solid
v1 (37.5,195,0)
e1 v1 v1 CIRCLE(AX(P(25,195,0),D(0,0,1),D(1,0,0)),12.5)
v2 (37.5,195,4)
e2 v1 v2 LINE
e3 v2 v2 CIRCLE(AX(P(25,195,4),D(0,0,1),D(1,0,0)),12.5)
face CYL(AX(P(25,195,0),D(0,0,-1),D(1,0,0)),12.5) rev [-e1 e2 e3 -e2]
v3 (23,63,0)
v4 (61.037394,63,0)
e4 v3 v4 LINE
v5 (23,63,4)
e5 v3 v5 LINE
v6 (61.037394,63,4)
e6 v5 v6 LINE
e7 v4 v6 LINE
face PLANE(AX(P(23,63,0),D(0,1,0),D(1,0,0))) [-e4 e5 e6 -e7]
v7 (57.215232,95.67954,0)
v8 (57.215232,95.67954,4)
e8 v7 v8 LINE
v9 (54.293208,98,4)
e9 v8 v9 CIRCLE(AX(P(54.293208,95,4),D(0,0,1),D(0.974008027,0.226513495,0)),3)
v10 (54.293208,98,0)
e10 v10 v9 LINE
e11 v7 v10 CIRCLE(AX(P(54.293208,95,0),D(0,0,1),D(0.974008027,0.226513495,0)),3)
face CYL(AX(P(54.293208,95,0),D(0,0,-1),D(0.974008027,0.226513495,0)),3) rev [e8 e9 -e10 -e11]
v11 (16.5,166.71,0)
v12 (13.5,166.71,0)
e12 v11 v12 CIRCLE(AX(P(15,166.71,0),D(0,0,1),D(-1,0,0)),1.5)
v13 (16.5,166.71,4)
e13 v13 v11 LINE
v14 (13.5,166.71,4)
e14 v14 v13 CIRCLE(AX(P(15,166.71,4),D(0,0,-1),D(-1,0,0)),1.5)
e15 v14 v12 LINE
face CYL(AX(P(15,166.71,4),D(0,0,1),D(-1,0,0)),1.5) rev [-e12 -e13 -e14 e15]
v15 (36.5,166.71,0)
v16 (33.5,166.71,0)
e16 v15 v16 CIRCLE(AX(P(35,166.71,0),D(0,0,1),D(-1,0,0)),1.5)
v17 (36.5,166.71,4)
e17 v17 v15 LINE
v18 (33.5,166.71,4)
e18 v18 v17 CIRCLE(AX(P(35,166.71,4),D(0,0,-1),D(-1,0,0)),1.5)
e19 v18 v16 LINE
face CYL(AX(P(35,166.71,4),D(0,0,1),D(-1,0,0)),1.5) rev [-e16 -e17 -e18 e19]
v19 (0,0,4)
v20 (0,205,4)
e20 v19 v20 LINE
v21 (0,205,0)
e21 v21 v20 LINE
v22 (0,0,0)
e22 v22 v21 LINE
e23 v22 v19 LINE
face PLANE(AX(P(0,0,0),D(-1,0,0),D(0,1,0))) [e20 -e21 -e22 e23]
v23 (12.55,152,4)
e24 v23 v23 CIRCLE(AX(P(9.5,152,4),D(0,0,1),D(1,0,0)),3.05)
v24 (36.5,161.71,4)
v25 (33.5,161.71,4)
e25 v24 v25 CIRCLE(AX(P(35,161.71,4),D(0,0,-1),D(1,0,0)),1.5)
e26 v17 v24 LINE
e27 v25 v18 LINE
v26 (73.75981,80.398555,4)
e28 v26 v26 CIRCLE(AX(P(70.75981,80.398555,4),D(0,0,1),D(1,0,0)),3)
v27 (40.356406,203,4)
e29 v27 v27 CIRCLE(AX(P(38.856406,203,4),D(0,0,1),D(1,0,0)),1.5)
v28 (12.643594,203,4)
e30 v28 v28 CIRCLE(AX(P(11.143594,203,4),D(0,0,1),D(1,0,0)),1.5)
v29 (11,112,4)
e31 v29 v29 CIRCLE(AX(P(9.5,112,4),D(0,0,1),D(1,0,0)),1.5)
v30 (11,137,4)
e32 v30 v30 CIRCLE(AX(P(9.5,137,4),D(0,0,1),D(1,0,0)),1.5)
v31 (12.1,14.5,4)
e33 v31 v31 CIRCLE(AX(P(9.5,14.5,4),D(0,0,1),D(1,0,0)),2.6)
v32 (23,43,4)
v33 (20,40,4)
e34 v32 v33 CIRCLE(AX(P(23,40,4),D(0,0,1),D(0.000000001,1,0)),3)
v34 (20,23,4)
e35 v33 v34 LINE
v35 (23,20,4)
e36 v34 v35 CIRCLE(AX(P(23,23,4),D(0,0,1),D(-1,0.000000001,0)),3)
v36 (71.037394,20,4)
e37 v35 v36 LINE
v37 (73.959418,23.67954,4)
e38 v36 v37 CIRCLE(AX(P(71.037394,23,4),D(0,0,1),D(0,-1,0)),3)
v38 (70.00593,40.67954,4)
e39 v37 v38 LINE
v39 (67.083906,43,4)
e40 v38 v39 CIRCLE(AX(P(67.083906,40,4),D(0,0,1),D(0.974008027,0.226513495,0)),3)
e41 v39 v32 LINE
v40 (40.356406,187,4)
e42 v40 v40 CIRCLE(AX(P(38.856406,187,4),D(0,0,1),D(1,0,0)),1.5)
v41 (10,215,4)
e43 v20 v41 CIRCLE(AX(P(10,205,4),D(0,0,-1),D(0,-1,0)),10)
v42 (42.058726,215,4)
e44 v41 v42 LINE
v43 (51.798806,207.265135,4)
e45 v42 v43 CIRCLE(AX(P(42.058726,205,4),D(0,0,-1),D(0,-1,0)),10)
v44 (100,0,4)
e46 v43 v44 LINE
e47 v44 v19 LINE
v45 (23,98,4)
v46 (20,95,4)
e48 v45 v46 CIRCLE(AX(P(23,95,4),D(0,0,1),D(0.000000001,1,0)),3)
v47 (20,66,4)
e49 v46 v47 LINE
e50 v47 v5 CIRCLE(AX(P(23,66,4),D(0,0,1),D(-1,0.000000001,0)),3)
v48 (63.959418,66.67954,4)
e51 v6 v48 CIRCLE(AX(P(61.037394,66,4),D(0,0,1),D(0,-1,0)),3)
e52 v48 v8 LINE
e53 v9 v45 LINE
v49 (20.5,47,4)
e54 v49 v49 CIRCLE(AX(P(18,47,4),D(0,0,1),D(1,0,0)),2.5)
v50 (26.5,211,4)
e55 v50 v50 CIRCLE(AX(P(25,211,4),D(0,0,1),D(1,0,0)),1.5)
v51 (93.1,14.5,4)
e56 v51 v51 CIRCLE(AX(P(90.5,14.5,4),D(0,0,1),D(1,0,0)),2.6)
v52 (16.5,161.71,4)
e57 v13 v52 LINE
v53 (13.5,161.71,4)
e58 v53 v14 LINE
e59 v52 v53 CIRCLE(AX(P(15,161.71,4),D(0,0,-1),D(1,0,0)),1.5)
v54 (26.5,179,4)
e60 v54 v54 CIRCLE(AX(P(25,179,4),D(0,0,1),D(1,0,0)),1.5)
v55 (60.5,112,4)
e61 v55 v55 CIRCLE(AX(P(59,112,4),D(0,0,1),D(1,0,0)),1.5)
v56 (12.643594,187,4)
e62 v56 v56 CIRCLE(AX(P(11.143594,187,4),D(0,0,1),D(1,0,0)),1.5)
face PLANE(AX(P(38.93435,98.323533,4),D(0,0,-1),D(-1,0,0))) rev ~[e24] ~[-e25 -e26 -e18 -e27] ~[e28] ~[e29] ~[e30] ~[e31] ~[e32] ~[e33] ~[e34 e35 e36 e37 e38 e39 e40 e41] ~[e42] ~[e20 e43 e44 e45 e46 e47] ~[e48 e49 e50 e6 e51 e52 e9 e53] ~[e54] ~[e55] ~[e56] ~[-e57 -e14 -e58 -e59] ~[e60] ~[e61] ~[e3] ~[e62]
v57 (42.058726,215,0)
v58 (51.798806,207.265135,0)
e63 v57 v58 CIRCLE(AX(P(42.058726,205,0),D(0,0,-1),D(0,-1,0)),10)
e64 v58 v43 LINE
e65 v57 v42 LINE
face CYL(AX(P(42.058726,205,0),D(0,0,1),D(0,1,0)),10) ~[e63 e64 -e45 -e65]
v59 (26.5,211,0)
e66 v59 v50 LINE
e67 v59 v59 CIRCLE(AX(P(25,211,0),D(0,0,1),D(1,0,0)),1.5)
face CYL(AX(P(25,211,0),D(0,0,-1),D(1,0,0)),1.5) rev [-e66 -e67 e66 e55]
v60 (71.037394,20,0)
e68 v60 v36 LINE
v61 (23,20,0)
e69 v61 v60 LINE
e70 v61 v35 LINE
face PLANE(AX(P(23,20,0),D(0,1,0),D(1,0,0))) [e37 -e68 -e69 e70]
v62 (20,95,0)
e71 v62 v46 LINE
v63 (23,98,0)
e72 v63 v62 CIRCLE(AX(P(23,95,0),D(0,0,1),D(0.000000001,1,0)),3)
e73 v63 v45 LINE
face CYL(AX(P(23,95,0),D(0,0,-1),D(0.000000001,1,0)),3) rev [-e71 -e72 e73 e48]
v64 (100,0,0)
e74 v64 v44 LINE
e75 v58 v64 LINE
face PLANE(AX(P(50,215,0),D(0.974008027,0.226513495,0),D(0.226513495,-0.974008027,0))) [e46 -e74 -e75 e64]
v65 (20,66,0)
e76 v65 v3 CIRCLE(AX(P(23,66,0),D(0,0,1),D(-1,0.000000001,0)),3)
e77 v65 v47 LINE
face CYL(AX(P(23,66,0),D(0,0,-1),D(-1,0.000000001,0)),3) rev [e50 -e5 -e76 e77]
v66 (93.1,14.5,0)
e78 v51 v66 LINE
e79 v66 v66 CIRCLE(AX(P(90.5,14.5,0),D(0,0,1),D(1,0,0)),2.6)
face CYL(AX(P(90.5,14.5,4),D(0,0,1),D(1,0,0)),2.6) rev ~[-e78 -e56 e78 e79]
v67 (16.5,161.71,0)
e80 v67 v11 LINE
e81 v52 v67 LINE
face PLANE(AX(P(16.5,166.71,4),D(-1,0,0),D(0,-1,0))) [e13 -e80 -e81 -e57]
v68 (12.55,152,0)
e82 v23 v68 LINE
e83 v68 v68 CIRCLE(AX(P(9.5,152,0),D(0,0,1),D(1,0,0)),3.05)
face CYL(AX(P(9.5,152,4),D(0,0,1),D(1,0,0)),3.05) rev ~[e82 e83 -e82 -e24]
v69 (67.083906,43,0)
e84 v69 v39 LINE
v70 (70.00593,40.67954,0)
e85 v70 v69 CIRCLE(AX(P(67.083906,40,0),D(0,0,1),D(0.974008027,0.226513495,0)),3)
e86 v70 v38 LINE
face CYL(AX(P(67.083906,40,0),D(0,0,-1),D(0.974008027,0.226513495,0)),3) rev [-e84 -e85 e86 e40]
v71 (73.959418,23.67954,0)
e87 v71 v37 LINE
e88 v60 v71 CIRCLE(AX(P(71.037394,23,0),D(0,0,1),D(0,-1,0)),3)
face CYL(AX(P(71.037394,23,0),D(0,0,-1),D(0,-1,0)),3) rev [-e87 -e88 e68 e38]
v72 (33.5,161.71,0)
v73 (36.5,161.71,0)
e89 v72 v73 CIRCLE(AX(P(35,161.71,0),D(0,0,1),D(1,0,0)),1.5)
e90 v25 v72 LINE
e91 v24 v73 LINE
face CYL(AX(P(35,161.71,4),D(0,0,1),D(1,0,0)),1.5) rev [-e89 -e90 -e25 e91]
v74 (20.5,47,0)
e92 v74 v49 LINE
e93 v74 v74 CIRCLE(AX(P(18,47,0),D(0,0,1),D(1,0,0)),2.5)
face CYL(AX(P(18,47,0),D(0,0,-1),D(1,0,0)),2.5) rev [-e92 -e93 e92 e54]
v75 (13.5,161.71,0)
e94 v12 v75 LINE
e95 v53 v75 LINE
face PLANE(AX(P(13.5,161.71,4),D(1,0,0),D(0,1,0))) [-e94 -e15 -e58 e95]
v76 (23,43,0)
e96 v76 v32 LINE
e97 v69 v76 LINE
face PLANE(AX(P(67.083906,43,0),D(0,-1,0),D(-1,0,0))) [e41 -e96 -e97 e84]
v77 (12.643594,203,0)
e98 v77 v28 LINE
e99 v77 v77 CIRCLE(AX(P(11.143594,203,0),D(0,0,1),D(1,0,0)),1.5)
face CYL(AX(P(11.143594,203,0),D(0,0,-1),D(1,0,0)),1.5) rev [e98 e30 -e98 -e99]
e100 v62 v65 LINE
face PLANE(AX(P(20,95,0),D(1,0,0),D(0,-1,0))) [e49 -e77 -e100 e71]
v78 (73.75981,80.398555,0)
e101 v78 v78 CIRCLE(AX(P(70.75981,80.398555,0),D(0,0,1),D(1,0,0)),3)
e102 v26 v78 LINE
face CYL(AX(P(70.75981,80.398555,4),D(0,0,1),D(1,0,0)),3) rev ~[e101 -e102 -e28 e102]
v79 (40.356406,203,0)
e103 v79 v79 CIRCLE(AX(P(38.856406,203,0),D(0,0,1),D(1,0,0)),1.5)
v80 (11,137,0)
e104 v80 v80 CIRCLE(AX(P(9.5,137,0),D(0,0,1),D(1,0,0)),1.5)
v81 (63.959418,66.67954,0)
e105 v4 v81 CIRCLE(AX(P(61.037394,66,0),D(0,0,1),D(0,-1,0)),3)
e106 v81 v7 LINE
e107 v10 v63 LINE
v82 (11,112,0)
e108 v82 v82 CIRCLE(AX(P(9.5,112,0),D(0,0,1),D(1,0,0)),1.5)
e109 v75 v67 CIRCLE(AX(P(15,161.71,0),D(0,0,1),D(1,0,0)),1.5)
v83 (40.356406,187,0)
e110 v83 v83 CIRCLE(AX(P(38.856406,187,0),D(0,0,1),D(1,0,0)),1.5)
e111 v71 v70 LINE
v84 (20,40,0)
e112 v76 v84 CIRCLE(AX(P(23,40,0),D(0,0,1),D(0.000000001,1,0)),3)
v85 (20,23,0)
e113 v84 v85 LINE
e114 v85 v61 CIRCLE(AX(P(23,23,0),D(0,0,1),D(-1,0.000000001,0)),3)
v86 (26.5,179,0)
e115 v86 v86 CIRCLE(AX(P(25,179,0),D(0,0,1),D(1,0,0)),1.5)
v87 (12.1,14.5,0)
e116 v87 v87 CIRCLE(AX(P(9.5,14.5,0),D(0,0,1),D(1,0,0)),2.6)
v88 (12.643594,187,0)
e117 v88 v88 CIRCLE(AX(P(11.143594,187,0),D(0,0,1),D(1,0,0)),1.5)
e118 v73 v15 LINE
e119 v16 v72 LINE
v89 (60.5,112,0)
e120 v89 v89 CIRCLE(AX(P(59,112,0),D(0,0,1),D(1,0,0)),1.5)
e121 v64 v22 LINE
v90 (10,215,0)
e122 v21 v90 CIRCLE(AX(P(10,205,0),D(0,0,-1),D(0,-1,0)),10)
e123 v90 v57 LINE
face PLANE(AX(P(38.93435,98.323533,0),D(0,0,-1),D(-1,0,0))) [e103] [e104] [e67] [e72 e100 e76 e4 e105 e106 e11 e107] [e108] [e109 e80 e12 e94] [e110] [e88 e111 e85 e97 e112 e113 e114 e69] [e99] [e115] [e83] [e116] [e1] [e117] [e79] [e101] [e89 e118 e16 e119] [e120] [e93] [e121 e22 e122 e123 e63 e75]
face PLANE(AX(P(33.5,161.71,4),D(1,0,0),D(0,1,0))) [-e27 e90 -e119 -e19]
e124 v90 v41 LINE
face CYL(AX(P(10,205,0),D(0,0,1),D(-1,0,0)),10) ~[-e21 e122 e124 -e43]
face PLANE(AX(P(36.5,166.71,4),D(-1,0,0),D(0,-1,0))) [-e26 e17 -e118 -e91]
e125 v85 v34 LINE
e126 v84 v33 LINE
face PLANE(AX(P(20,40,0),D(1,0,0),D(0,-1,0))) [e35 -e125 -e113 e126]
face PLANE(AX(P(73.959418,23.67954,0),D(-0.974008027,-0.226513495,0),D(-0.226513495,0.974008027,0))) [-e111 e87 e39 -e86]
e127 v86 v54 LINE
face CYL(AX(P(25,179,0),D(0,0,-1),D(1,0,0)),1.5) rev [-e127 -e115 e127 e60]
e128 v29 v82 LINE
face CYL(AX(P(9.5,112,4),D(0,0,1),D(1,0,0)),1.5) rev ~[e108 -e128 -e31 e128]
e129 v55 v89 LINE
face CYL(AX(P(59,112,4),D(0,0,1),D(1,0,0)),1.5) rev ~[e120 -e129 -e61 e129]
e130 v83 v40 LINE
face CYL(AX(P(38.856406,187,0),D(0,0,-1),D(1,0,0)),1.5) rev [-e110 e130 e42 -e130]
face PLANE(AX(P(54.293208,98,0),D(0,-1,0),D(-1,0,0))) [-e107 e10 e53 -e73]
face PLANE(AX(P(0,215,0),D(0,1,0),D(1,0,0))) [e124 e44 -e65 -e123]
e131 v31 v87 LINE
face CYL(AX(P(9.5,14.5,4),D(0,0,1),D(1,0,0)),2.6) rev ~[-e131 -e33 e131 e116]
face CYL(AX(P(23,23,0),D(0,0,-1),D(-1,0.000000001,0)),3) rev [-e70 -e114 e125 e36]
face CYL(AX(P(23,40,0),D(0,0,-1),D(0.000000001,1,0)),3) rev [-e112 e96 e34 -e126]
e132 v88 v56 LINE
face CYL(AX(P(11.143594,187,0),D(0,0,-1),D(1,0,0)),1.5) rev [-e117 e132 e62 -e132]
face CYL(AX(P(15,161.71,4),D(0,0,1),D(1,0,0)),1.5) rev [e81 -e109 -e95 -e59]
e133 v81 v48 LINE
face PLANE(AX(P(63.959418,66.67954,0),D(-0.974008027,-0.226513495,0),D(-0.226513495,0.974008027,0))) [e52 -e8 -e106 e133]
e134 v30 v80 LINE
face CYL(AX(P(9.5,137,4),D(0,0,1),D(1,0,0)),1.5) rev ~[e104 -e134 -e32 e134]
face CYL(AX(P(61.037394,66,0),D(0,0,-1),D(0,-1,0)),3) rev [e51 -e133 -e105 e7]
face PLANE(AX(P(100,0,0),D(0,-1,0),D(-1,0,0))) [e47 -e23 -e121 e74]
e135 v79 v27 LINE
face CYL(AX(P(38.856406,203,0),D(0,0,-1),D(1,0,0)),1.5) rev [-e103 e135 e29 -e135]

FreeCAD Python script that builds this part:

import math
import FreeCAD as App
import Part
import Sketcher


def edges_at(feature, points):
    """Names of the edges that pass closest to the given points."""
    edges = feature.Shape.Edges
    near = lambda p: min(range(len(edges)), key=lambda i: edges[i].distToShape(Part.Vertex(*p))[0])
    return sorted({f"Edge{near(p) + 1}" for p in points})

doc = App.newDocument("Part")
body = doc.addObject("PartDesign::Body", "Body")

# Sketch on XY plane
sketch1 = body.newObject("Sketcher::SketchObject", "Sketch")
sketch1.AttachmentSupport = (doc.getObject("XY_Plane"), [""])
sketch1.MapMode = "FlatFace"
sketch1.addGeometry([
    Part.LineSegment(App.Vector(0, 215, 0), App.Vector(0, 0, 0)),  # 0
    Part.LineSegment(App.Vector(0, 0, 0), App.Vector(100, 0, 0)),  # 1
    Part.LineSegment(App.Vector(100, 0, 0), App.Vector(50, 215, 0)),  # 2
    Part.LineSegment(App.Vector(50, 215, 0), App.Vector(0, 215, 0)),  # 3
    Part.ArcOfCircle(Part.Circle(App.Vector(23, 40, 0), App.Vector(0, 0, 1), 3), math.radians(90), math.radians(180)),  # 4
    Part.LineSegment(App.Vector(23, 43, 0), App.Vector(67.083906, 43, 0)),  # 5
    Part.ArcOfCircle(Part.Circle(App.Vector(67.083906, 40, 0), App.Vector(0, 0, 1), 3), math.radians(13.091893), math.radians(90)),  # 6
    Part.LineSegment(App.Vector(70.00593, 40.67954, 0), App.Vector(73.959418, 23.67954, 0)),  # 7
    Part.ArcOfCircle(Part.Circle(App.Vector(71.037394, 23, 0), App.Vector(0, 0, 1), 3), math.radians(-90), math.radians(13.091893)),  # 8
    Part.LineSegment(App.Vector(71.037394, 20, 0), App.Vector(23, 20, 0)),  # 9
    Part.ArcOfCircle(Part.Circle(App.Vector(23, 23, 0), App.Vector(0, 0, 1), 3), math.radians(180), math.radians(270)),  # 10
    Part.LineSegment(App.Vector(20, 23, 0), App.Vector(20, 40, 0)),  # 11
    Part.ArcOfCircle(Part.Circle(App.Vector(23, 95, 0), App.Vector(0, 0, 1), 3), math.radians(90), math.radians(180)),  # 12
    Part.LineSegment(App.Vector(23, 98, 0), App.Vector(54.293208, 98, 0)),  # 13
    Part.ArcOfCircle(Part.Circle(App.Vector(54.293208, 95, 0), App.Vector(0, 0, 1), 3), math.radians(13.091893), math.radians(90)),  # 14
    Part.LineSegment(App.Vector(57.215232, 95.67954, 0), App.Vector(63.959418, 66.67954, 0)),  # 15
    Part.ArcOfCircle(Part.Circle(App.Vector(61.037394, 66, 0), App.Vector(0, 0, 1), 3), math.radians(-90), math.radians(13.091893)),  # 16
    Part.LineSegment(App.Vector(61.037394, 63, 0), App.Vector(23, 63, 0)),  # 17
    Part.ArcOfCircle(Part.Circle(App.Vector(23, 66, 0), App.Vector(0, 0, 1), 3), math.radians(180), math.radians(270)),  # 18
    Part.LineSegment(App.Vector(20, 66, 0), App.Vector(20, 95, 0)),  # 19
    Part.Circle(App.Vector(18, 47, 0), App.Vector(0, 0, 1), 2.5),  # 20
    Part.Circle(App.Vector(38.856406, 187, 0), App.Vector(0, 0, 1), 1.5),  # 21
    Part.Circle(App.Vector(38.856406, 203, 0), App.Vector(0, 0, 1), 1.5),  # 22
    Part.Circle(App.Vector(25, 179, 0), App.Vector(0, 0, 1), 1.5),  # 23
    Part.Circle(App.Vector(11.143594, 187, 0), App.Vector(0, 0, 1), 1.5),  # 24
    Part.Circle(App.Vector(25, 195, 0), App.Vector(0, 0, 1), 12.5),  # 25
    Part.Circle(App.Vector(25, 211, 0), App.Vector(0, 0, 1), 1.5),  # 26
    Part.Circle(App.Vector(11.143594, 203, 0), App.Vector(0, 0, 1), 1.5),  # 27
], False)
sketch1.addConstraint([
    Sketcher.Constraint("Coincident", 0, 2, 1, 1),
    Sketcher.Constraint("Coincident", 1, 2, 2, 1),
    Sketcher.Constraint("Coincident", 2, 2, 3, 1),
    Sketcher.Constraint("Coincident", 3, 2, 0, 1),
    Sketcher.Constraint("Tangent", 4, 1, 5, 1),
    Sketcher.Constraint("Tangent", 5, 2, 6, 2),
    Sketcher.Constraint("Tangent", 6, 1, 7, 1),
    Sketcher.Constraint("Tangent", 7, 2, 8, 2),
    Sketcher.Constraint("Tangent", 8, 1, 9, 1),
    Sketcher.Constraint("Tangent", 9, 2, 10, 2),
    Sketcher.Constraint("Tangent", 10, 1, 11, 1),
    Sketcher.Constraint("Tangent", 11, 2, 4, 2),
    Sketcher.Constraint("Tangent", 12, 1, 13, 1),
    Sketcher.Constraint("Tangent", 13, 2, 14, 2),
    Sketcher.Constraint("Tangent", 14, 1, 15, 1),
    Sketcher.Constraint("Tangent", 15, 2, 16, 2),
    Sketcher.Constraint("Tangent", 16, 1, 17, 1),
    Sketcher.Constraint("Tangent", 17, 2, 18, 2),
    Sketcher.Constraint("Tangent", 18, 1, 19, 1),
    Sketcher.Constraint("Tangent", 19, 2, 12, 2),
    Sketcher.Constraint("Vertical", 0),
    Sketcher.Constraint("Horizontal", 1),
    Sketcher.Constraint("Horizontal", 3),
    Sketcher.Constraint("Horizontal", 5),
    Sketcher.Constraint("Horizontal", 9),
    Sketcher.Constraint("Vertical", 11),
    Sketcher.Constraint("Horizontal", 13),
    Sketcher.Constraint("Horizontal", 17),
    Sketcher.Constraint("Vertical", 19),
    Sketcher.Constraint("Coincident", 0, 2, -1, 1),
    Sketcher.Constraint("Equal", 4, 6),
    Sketcher.Constraint("Equal", 6, 8),
    Sketcher.Constraint("Equal", 8, 10),
    Sketcher.Constraint("Equal", 10, 12),
    Sketcher.Constraint("Equal", 12, 14),
    Sketcher.Constraint("Equal", 14, 16),
    Sketcher.Constraint("Equal", 16, 18),
    Sketcher.Constraint("Equal", 21, 22),
    Sketcher.Constraint("Equal", 22, 23),
    Sketcher.Constraint("Equal", 23, 24),
    Sketcher.Constraint("Equal", 24, 26),
    Sketcher.Constraint("Equal", 26, 27),
    Sketcher.Constraint("Parallel", 2, 7),
    Sketcher.Constraint("Parallel", 7, 15),
    Sketcher.Constraint("Horizontal", 21, 3, 24, 3),
    Sketcher.Constraint("Horizontal", 22, 3, 27, 3),
    Sketcher.Constraint("Vertical", 10, 3, 12, 3),
    Sketcher.Constraint("Vertical", 21, 3, 22, 3),
    Sketcher.Constraint("Vertical", 23, 3, 25, 3),
    Sketcher.Constraint("Vertical", 25, 3, 26, 3),
    Sketcher.Constraint("Vertical", 24, 3, 27, 3),
    Sketcher.Constraint("Diameter", 20, 5.0),
    Sketcher.Constraint("Diameter", 21, 3.0),
    Sketcher.Constraint("Diameter", 25, 25.0),
    Sketcher.Constraint("Radius", 4, 3.0),
    Sketcher.Constraint("DistanceX", 1, 1, 1, 2, 100.0),
    Sketcher.Constraint("DistanceX", 3, 2, 3, 1, 50.0),
    Sketcher.Constraint("DistanceY", 0, 2, 0, 1, 215.0),
    Sketcher.Constraint("DistanceY", 11, 1, 11, 2, 17.0),
    Sketcher.Constraint("DistanceY", 19, 1, 19, 2, 29.0),
    Sketcher.Constraint("DistanceX", -1, 1, 4, 3, 23.0),
    Sketcher.Constraint("DistanceY", -1, 1, 4, 3, 40.0),
    Sketcher.Constraint("DistanceY", -1, 1, 12, 3, 95.0),
    Sketcher.Constraint("DistanceX", -1, 1, 20, 3, 18.0),
    Sketcher.Constraint("DistanceY", -1, 1, 20, 3, 47.0),
    Sketcher.Constraint("DistanceY", -1, 1, 21, 3, 187.0),
    Sketcher.Constraint("DistanceY", -1, 1, 22, 3, 203.0),
    Sketcher.Constraint("DistanceX", -1, 1, 23, 3, 25.0),
    Sketcher.Constraint("DistanceY", -1, 1, 23, 3, 179.0),
    Sketcher.Constraint("DistanceY", -1, 1, 25, 3, 195.0),
    Sketcher.Constraint("DistanceY", -1, 1, 26, 3, 211.0),
    Sketcher.Constraint("DistanceX", 16, 3, 8, 3, 10.0),
    Sketcher.Constraint("DistanceX", 13, 1, 13, 2, 31.293208),
    Sketcher.Constraint("DistanceX", 21, 3, 14, 3, 15.436802),
    Sketcher.Constraint("DistanceX", -1, 1, 24, 3, 11.143594),
])
pad1 = body.newObject("PartDesign::Pad", "Pad")
pad1.Profile = sketch1
pad1.Length = 4
doc.recompute()

fillet = body.newObject("PartDesign::Fillet", "Fillet")
fillet.Base = (pad1, edges_at(pad1, [(0, 215, 2), (50, 215, 2)]))
fillet.Radius = 10

# Sketch on XY plane
sketch2 = body.newObject("Sketcher::SketchObject", "Sketch001")
sketch2.AttachmentSupport = (doc.getObject("XY_Plane"), [""])
sketch2.MapMode = "FlatFace"
sketch2.AttachmentOffset = App.Placement(App.Vector(0, 0, 4), App.Rotation())
sketch2.addGeometry([
    Part.Circle(App.Vector(9.5, 137, 0), App.Vector(0, 0, 1), 1.5),  # 0
    Part.Circle(App.Vector(90.5, 14.5, 0), App.Vector(0, 0, 1), 2.6),  # 1
    Part.Circle(App.Vector(9.5, 112, 0), App.Vector(0, 0, 1), 1.5),  # 2
    Part.Circle(App.Vector(9.5, 152, 0), App.Vector(0, 0, 1), 3.05),  # 3
    Part.Circle(App.Vector(59, 112, 0), App.Vector(0, 0, 1), 1.5),  # 4
    Part.Circle(App.Vector(9.5, 14.5, 0), App.Vector(0, 0, 1), 2.6),  # 5
    Part.LineSegment(App.Vector(13.5, 166.71, 0), App.Vector(13.5, 161.71, 0)),  # 6
    Part.ArcOfCircle(Part.Circle(App.Vector(15, 161.71, 0), App.Vector(0, 0, 1), 1.5), math.radians(180), math.radians(360)),  # 7
    Part.LineSegment(App.Vector(16.5, 161.71, 0), App.Vector(16.5, 166.71, 0)),  # 8
    Part.ArcOfCircle(Part.Circle(App.Vector(15, 166.71, 0), App.Vector(0, 0, 1), 1.5), math.radians(0), math.radians(180)),  # 9
    Part.LineSegment(App.Vector(33.5, 166.71, 0), App.Vector(33.5, 161.71, 0)),  # 10
    Part.ArcOfCircle(Part.Circle(App.Vector(35, 161.71, 0), App.Vector(0, 0, 1), 1.5), math.radians(180), math.radians(360)),  # 11
    Part.LineSegment(App.Vector(36.5, 161.71, 0), App.Vector(36.5, 166.71, 0)),  # 12
    Part.ArcOfCircle(Part.Circle(App.Vector(35, 166.71, 0), App.Vector(0, 0, 1), 1.5), math.radians(0), math.radians(180)),  # 13
], False)
sketch2.addConstraint([
    Sketcher.Constraint("Tangent", 6, 2, 7, 1),
    Sketcher.Constraint("Tangent", 7, 2, 8, 1),
    Sketcher.Constraint("Tangent", 8, 2, 9, 1),
    Sketcher.Constraint("Tangent", 9, 2, 6, 1),
    Sketcher.Constraint("Tangent", 10, 2, 11, 1),
    Sketcher.Constraint("Tangent", 11, 2, 12, 1),
    Sketcher.Constraint("Tangent", 12, 2, 13, 1),
    Sketcher.Constraint("Tangent", 13, 2, 10, 1),
    Sketcher.Constraint("Vertical", 6),
    Sketcher.Constraint("Vertical", 8),
    Sketcher.Constraint("Vertical", 10),
    Sketcher.Constraint("Vertical", 12),
    Sketcher.Constraint("Equal", 0, 2),
    Sketcher.Constraint("Equal", 2, 4),
    Sketcher.Constraint("Equal", 1, 5),
    Sketcher.Constraint("Equal", 4, 7),
    Sketcher.Constraint("Equal", 9, 11),
    Sketcher.Constraint("Horizontal", 2, 3, 4, 3),
    Sketcher.Constraint("Horizontal", 1, 3, 5, 3),
    Sketcher.Constraint("Horizontal", 7, 3, 11, 3),
    Sketcher.Constraint("Horizontal", 9, 3, 13, 3),
    Sketcher.Constraint("Vertical", 0, 3, 2, 3),
    Sketcher.Constraint("Vertical", 2, 3, 3, 3),
    Sketcher.Constraint("Vertical", 3, 3, 5, 3),
    Sketcher.Constraint("Diameter", 0, 3.0),
    Sketcher.Constraint("Diameter", 1, 5.2),
    Sketcher.Constraint("Diameter", 3, 6.1),
    Sketcher.Constraint("DistanceY", 6, 2, 6, 1, 5.0),
    Sketcher.Constraint("DistanceY", -1, 1, 0, 3, 137.0),
    Sketcher.Constraint("DistanceY", -1, 1, 2, 3, 112.0),
    Sketcher.Constraint("DistanceY", -1, 1, 3, 3, 152.0),
    Sketcher.Constraint("DistanceX", -1, 1, 4, 3, 59.0),
    Sketcher.Constraint("DistanceX", -1, 1, 7, 3, 15.0),
    Sketcher.Constraint("DistanceX", -1, 1, 11, 3, 35.0),
    Sketcher.Constraint("DistanceX", 0, 3, 1, 3, 81.0),
    Sketcher.Constraint("DistanceX", 3, 3, 6, 2, 4.0),
    Sketcher.Constraint("DistanceY", -1, 1, 1, 3, 14.5),
    Sketcher.Constraint("DistanceY", -1, 1, 7, 3, 161.71),
])
pocket1 = body.newObject("PartDesign::Pocket", "Pocket")
pocket1.Profile = sketch2
pocket1.Type = "ThroughAll"

# Sketch on XY plane
sketch3 = body.newObject("Sketcher::SketchObject", "Sketch002")
sketch3.AttachmentSupport = (doc.getObject("XY_Plane"), [""])
sketch3.MapMode = "FlatFace"
sketch3.AttachmentOffset = App.Placement(App.Vector(0, 0, 4), App.Rotation())
sketch3.addGeometry(Part.Circle(App.Vector(70.75981, 80.398555, 0), App.Vector(0, 0, 1), 3), False)
sketch3.addConstraint([
    Sketcher.Constraint("Diameter", 0, 6.0),
    Sketcher.Constraint("DistanceX", -1, 1, 0, 3, 70.75981),
    Sketcher.Constraint("DistanceY", -1, 1, 0, 3, 80.398555),
])
pocket2 = body.newObject("PartDesign::Pocket", "Pocket001")
pocket2.Profile = sketch3
pocket2.Type = "ThroughAll"

doc.recompute()
